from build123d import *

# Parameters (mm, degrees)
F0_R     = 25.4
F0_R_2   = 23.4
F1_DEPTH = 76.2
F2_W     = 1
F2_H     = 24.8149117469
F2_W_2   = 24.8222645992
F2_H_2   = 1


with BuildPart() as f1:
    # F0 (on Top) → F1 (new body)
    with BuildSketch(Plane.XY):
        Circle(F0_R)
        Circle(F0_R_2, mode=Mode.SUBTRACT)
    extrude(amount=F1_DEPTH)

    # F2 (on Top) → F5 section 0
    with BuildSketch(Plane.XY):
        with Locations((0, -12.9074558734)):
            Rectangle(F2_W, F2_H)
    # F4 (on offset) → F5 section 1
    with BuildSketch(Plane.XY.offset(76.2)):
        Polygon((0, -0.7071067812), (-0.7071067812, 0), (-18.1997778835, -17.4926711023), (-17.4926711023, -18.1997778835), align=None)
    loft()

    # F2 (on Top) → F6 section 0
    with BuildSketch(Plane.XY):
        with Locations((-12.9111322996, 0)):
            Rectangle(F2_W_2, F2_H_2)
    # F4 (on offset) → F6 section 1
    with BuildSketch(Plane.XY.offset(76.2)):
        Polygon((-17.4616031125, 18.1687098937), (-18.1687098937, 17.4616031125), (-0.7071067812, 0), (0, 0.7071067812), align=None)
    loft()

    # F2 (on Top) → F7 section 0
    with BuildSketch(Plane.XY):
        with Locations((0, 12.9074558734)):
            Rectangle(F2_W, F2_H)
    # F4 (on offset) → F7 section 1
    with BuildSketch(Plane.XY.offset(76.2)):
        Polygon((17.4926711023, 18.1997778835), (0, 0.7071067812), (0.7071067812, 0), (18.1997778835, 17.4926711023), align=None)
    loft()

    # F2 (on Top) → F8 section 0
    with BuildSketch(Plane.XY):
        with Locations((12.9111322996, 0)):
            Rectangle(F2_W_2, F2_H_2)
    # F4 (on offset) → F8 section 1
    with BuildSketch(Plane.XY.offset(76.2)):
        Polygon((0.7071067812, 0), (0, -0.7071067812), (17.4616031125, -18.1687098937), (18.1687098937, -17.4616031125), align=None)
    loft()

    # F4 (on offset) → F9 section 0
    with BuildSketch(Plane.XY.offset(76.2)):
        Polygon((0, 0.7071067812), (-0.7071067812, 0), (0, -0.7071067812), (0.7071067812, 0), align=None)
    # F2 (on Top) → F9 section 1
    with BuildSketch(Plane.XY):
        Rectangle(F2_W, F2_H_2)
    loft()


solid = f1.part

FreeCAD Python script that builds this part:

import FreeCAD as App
import Part
import Sketcher
from FreeCAD import Vector
Q = App.Units.Quantity

doc = App.newDocument("Part")
body = doc.addObject("PartDesign::Body", "Body")

sketch1 = body.newObject("Sketcher::SketchObject", "Sketch")
sketch1.AttachmentSupport = (doc.getObject("XY_Plane"), [""])
sketch1.MapMode = "FlatFace"
sketch1.addGeometry(Part.Circle(Vector(0, 0, 0), Vector(0, 0, 1), 25.4), False)
sketch1.addGeometry(Part.Circle(Vector(0, 0, 0), Vector(0, 0, 1), 23.4), False)
sketch1.addConstraint(Sketcher.Constraint("Coincident", 0, 3, -1, 1))
sketch1.addConstraint(Sketcher.Constraint("Coincident", 1, 3, -1, 1))
sketch1.addConstraint(Sketcher.Constraint("Diameter", 0, 50.8))
sketch1.addConstraint(Sketcher.Constraint("Diameter", 1, 46.8))
pad1 = body.newObject("PartDesign::Pad", "Pad")
pad1.Profile = sketch1
pad1.Length = 76.2

sketch2 = body.newObject("Sketcher::SketchObject", "Sketch001")
sketch2.AttachmentSupport = (doc.getObject("XY_Plane"), [""])
sketch2.MapMode = "FlatFace"
sketch2.addGeometry(Part.LineSegment(Vector(-0.5, -0.5, 0), Vector(-0.5, -25.314912, 0)), False)
sketch2.addGeometry(Part.LineSegment(Vector(-0.5, -25.314912, 0), Vector(0.5, -25.314912, 0)), False)
sketch2.addGeometry(Part.LineSegment(Vector(0.5, -25.314912, 0), Vector(0.5, -0.5, 0)), False)
sketch2.addGeometry(Part.LineSegment(Vector(0.5, -0.5, 0), Vector(-0.5, -0.5, 0)), False)
sketch2.addConstraint(Sketcher.Constraint("Coincident", 0, 2, 1, 1))
sketch2.addConstraint(Sketcher.Constraint("Coincident", 1, 2, 2, 1))
sketch2.addConstraint(Sketcher.Constraint("Coincident", 2, 2, 3, 1))
sketch2.addConstraint(Sketcher.Constraint("Coincident", 3, 2, 0, 1))
sketch2.addConstraint(Sketcher.Constraint("Vertical", 0))
sketch2.addConstraint(Sketcher.Constraint("Horizontal", 1))
sketch2.addConstraint(Sketcher.Constraint("Vertical", 2))
sketch2.addConstraint(Sketcher.Constraint("Horizontal", 3))
sketch2.addConstraint(Sketcher.Constraint("DistanceX", 1, 1, 1, 2, 1.0))
sketch2.addConstraint(Sketcher.Constraint("DistanceX", 0, 2, -1, 1, 0.5))
sketch2.addConstraint(Sketcher.Constraint("DistanceY", 2, 2, -1, 1, 0.5))
sketch2.addConstraint(Sketcher.Constraint("DistanceY", 0, 2, 0, 1, 24.814912))

sketch3 = body.newObject("Sketcher::SketchObject", "Sketch002")
sketch3.AttachmentSupport = (doc.getObject("XY_Plane"), [""])
sketch3.MapMode = "FlatFace"
sketch3.AttachmentOffset = App.Placement(Vector(0, 0, 76.2), App.Rotation())
sketch3.addGeometry(Part.LineSegment(Vector(0, -0.707107, 0), Vector(-0.707107, 0, 0)), False)
sketch3.addGeometry(Part.LineSegment(Vector(-0.707107, 0, 0), Vector(-18.199778, -17.492671, 0)), False)
sketch3.addGeometry(Part.LineSegment(Vector(-18.199778, -17.492671, 0), Vector(-17.492671, -18.199778, 0)), False)
sketch3.addGeometry(Part.LineSegment(Vector(-17.492671, -18.199778, 0), Vector(0, -0.707107, 0)), False)
sketch3.addConstraint(Sketcher.Constraint("Coincident", 0, 2, 1, 1))
sketch3.addConstraint(Sketcher.Constraint("Coincident", 1, 2, 2, 1))
sketch3.addConstraint(Sketcher.Constraint("Coincident", 2, 2, 3, 1))
sketch3.addConstraint(Sketcher.Constraint("Coincident", 3, 2, 0, 1))
sketch3.addConstraint(Sketcher.Constraint("PointOnObject", 0, 2, -1))
sketch3.addConstraint(Sketcher.Constraint("PointOnObject", 3, 2, -2))
sketch3.addConstraint(Sketcher.Constraint("Perpendicular", 0, 1))
sketch3.addConstraint(Sketcher.Constraint("Perpendicular", 1, 2))
sketch3.addConstraint(Sketcher.Constraint("Perpendicular", 2, 3))
sketch3.addConstraint(Sketcher.Constraint("Angle", 0, Q("135 deg")))
sketch3.addConstraint(Sketcher.Constraint("Distance", 0, 1.0))
sketch3.addConstraint(Sketcher.Constraint("DistanceY", 1, 2, -1, 1, 17.492671))

additiveloft = body.newObject("PartDesign::AdditiveLoft", "AdditiveLoft")
additiveloft.Profile = sketch2
additiveloft.Sections = [sketch3]

sketch4 = body.newObject("Sketcher::SketchObject", "Sketch003")
sketch4.AttachmentSupport = (doc.getObject("XY_Plane"), [""])
sketch4.MapMode = "FlatFace"
sketch4.addGeometry(Part.LineSegment(Vector(-25.322265, 0.5, 0), Vector(-25.322265, -0.5, 0)), False)
sketch4.addGeometry(Part.LineSegment(Vector(-25.322265, -0.5, 0), Vector(-0.5, -0.5, 0)), False)
sketch4.addGeometry(Part.LineSegment(Vector(-0.5, -0.5, 0), Vector(-0.5, 0.5, 0)), False)
sketch4.addGeometry(Part.LineSegment(Vector(-0.5, 0.5, 0), Vector(-25.322265, 0.5, 0)), False)
sketch4.addConstraint(Sketcher.Constraint("Coincident", 0, 2, 1, 1))
sketch4.addConstraint(Sketcher.Constraint("Coincident", 1, 2, 2, 1))
sketch4.addConstraint(Sketcher.Constraint("Coincident", 2, 2, 3, 1))
sketch4.addConstraint(Sketcher.Constraint("Coincident", 3, 2, 0, 1))
sketch4.addConstraint(Sketcher.Constraint("Vertical", 0))
sketch4.addConstraint(Sketcher.Constraint("Horizontal", 1))
sketch4.addConstraint(Sketcher.Constraint("Vertical", 2))
sketch4.addConstraint(Sketcher.Constraint("Horizontal", 3))
sketch4.addConstraint(Sketcher.Constraint("DistanceY", 0, 2, 0, 1, 1.0))
sketch4.addConstraint(Sketcher.Constraint("DistanceY", 0, 2, -1, 1, 0.5))
sketch4.addConstraint(Sketcher.Constraint("DistanceX", 1, 2, -1, 1, 0.5))
sketch4.addConstraint(Sketcher.Constraint("DistanceX", 1, 1, 1, 2, 24.822265))

sketch5 = body.newObject("Sketcher::SketchObject", "Sketch004")
sketch5.AttachmentSupport = (doc.getObject("XY_Plane"), [""])
sketch5.MapMode = "FlatFace"
sketch5.AttachmentOffset = App.Placement(Vector(0, 0, 76.2), App.Rotation())
sketch5.addGeometry(Part.LineSegment(Vector(-17.461603, 18.16871, 0), Vector(-18.16871, 17.461603, 0)), False)
sketch5.addGeometry(Part.LineSegment(Vector(-18.16871, 17.461603, 0), Vector(-0.707107, 0, 0)), False)
sketch5.addGeometry(Part.LineSegment(Vector(-0.707107, 0, 0), Vector(0, 0.707107, 0)), False)
sketch5.addGeometry(Part.LineSegment(Vector(0, 0.707107, 0), Vector(-17.461603, 18.16871, 0)), False)
sketch5.addConstraint(Sketcher.Constraint("Coincident", 0, 2, 1, 1))
sketch5.addConstraint(Sketcher.Constraint("Coincident", 1, 2, 2, 1))
sketch5.addConstraint(Sketcher.Constraint("Coincident", 2, 2, 3, 1))
sketch5.addConstraint(Sketcher.Constraint("Coincident", 3, 2, 0, 1))
sketch5.addConstraint(Sketcher.Constraint("PointOnObject", 1, 2, -1))
sketch5.addConstraint(Sketcher.Constraint("PointOnObject", 2, 2, -2))
sketch5.addConstraint(Sketcher.Constraint("Perpendicular", 0, 1))
sketch5.addConstraint(Sketcher.Constraint("Perpendicular", 1, 2))
sketch5.addConstraint(Sketcher.Constraint("Perpendicular", 2, 3))
sketch5.addConstraint(Sketcher.Constraint("Angle", 0, Q("-135 deg")))
sketch5.addConstraint(Sketcher.Constraint("Distance", 0, 1.0))
sketch5.addConstraint(Sketcher.Constraint("DistanceX", 0, 2, -1, 1, 18.16871))

additiveloft2 = body.newObject("PartDesign::AdditiveLoft", "AdditiveLoft001")
additiveloft2.Profile = sketch4
additiveloft2.Sections = [sketch5]

sketch6 = body.newObject("Sketcher::SketchObject", "Sketch005")
sketch6.AttachmentSupport = (doc.getObject("XY_Plane"), [""])
sketch6.MapMode = "FlatFace"
sketch6.addGeometry(Part.LineSegment(Vector(-0.5, 25.314912, 0), Vector(-0.5, 0.5, 0)), False)
sketch6.addGeometry(Part.LineSegment(Vector(-0.5, 0.5, 0), Vector(0.5, 0.5, 0)), False)
sketch6.addGeometry(Part.LineSegment(Vector(0.5, 0.5, 0), Vector(0.5, 25.314912, 0)), False)
sketch6.addGeometry(Part.LineSegment(Vector(0.5, 25.314912, 0), Vector(-0.5, 25.314912, 0)), False)
sketch6.addConstraint(Sketcher.Constraint("Coincident", 0, 2, 1, 1))
sketch6.addConstraint(Sketcher.Constraint("Coincident", 1, 2, 2, 1))
sketch6.addConstraint(Sketcher.Constraint("Coincident", 2, 2, 3, 1))
sketch6.addConstraint(Sketcher.Constraint("Coincident", 3, 2, 0, 1))
sketch6.addConstraint(Sketcher.Constraint("Vertical", 0))
sketch6.addConstraint(Sketcher.Constraint("Horizontal", 1))
sketch6.addConstraint(Sketcher.Constraint("Vertical", 2))
sketch6.addConstraint(Sketcher.Constraint("Horizontal", 3))
sketch6.addConstraint(Sketcher.Constraint("DistanceX", 1, 1, 1, 2, 1.0))
sketch6.addConstraint(Sketcher.Constraint("DistanceX", 0, 2, -1, 1, 0.5))
sketch6.addConstraint(Sketcher.Constraint("DistanceY", -1, 1, 0, 2, 0.5))
sketch6.addConstraint(Sketcher.Constraint("DistanceY", 0, 2, 0, 1, 24.814912))

sketch7 = body.newObject("Sketcher::SketchObject", "Sketch006")
sketch7.AttachmentSupport = (doc.getObject("XY_Plane"), [""])
sketch7.MapMode = "FlatFace"
sketch7.AttachmentOffset = App.Placement(Vector(0, 0, 76.2), App.Rotation())
sketch7.addGeometry(Part.LineSegment(Vector(17.492671, 18.199778, 0), Vector(0, 0.707107, 0)), False)
sketch7.addGeometry(Part.LineSegment(Vector(0, 0.707107, 0), Vector(0.707107, 0, 0)), False)
sketch7.addGeometry(Part.LineSegment(Vector(0.707107, 0, 0), Vector(18.199778, 17.492671, 0)), False)
sketch7.addGeometry(Part.LineSegment(Vector(18.199778, 17.492671, 0), Vector(17.492671, 18.199778, 0)), False)
sketch7.addConstraint(Sketcher.Constraint("Coincident", 0, 2, 1, 1))
sketch7.addConstraint(Sketcher.Constraint("Coincident", 1, 2, 2, 1))
sketch7.addConstraint(Sketcher.Constraint("Coincident", 2, 2, 3, 1))
sketch7.addConstraint(Sketcher.Constraint("Coincident", 3, 2, 0, 1))
sketch7.addConstraint(Sketcher.Constraint("PointOnObject", 0, 2, -2))
sketch7.addConstraint(Sketcher.Constraint("PointOnObject", 1, 2, -1))
sketch7.addConstraint(Sketcher.Constraint("Perpendicular", 0, 1))
sketch7.addConstraint(Sketcher.Constraint("Perpendicular", 1, 2))
sketch7.addConstraint(Sketcher.Constraint("Perpendicular", 2, 3))
sketch7.addConstraint(Sketcher.Constraint("Angle", 0, Q("-135 deg")))
sketch7.addConstraint(Sketcher.Constraint("Distance", 1, 1.0))
sketch7.addConstraint(Sketcher.Constraint("DistanceY", -1, 1, 2, 2, 17.492671))

additiveloft3 = body.newObject("PartDesign::AdditiveLoft", "AdditiveLoft002")
additiveloft3.Profile = sketch6
additiveloft3.Sections = [sketch7]

sketch8 = body.newObject("Sketcher::SketchObject", "Sketch007")
sketch8.AttachmentSupport = (doc.getObject("XY_Plane"), [""])
sketch8.MapMode = "FlatFace"
sketch8.addGeometry(Part.LineSegment(Vector(0.5, 0.5, 0), Vector(0.5, -0.5, 0)), False)
sketch8.addGeometry(Part.LineSegment(Vector(0.5, -0.5, 0), Vector(25.322265, -0.5, 0)), False)
sketch8.addGeometry(Part.LineSegment(Vector(25.322265, -0.5, 0), Vector(25.322265, 0.5, 0)), False)
sketch8.addGeometry(Part.LineSegment(Vector(25.322265, 0.5, 0), Vector(0.5, 0.5, 0)), False)
sketch8.addConstraint(Sketcher.Constraint("Coincident", 0, 2, 1, 1))
sketch8.addConstraint(Sketcher.Constraint("Coincident", 1, 2, 2, 1))
sketch8.addConstraint(Sketcher.Constraint("Coincident", 2, 2, 3, 1))
sketch8.addConstraint(Sketcher.Constraint("Coincident", 3, 2, 0, 1))
sketch8.addConstraint(Sketcher.Constraint("Vertical", 0))
sketch8.addConstraint(Sketcher.Constraint("Horizontal", 1))
sketch8.addConstraint(Sketcher.Constraint("Vertical", 2))
sketch8.addConstraint(Sketcher.Constraint("Horizontal", 3))
sketch8.addConstraint(Sketcher.Constraint("DistanceY", 0, 2, 0, 1, 1.0))
sketch8.addConstraint(Sketcher.Constraint("DistanceX", -1, 1, 0, 2, 0.5))
sketch8.addConstraint(Sketcher.Constraint("DistanceY", 0, 2, -1, 1, 0.5))
sketch8.addConstraint(Sketcher.Constraint("DistanceX", 1, 1, 1, 2, 24.822265))

sketch9 = body.newObject("Sketcher::SketchObject", "Sketch008")
sketch9.AttachmentSupport = (doc.getObject("XY_Plane"), [""])
sketch9.MapMode = "FlatFace"
sketch9.AttachmentOffset = App.Placement(Vector(0, 0, 76.2), App.Rotation())
sketch9.addGeometry(Part.LineSegment(Vector(0.707107, 0, 0), Vector(0, -0.707107, 0)), False)
sketch9.addGeometry(Part.LineSegment(Vector(0, -0.707107, 0), Vector(17.461603, -18.16871, 0)), False)
sketch9.addGeometry(Part.LineSegment(Vector(17.461603, -18.16871, 0), Vector(18.16871, -17.461603, 0)), False)
sketch9.addGeometry(Part.LineSegment(Vector(18.16871, -17.461603, 0), Vector(0.707107, 0, 0)), False)
sketch9.addConstraint(Sketcher.Constraint("Coincident", 0, 2, 1, 1))
sketch9.addConstraint(Sketcher.Constraint("Coincident", 1, 2, 2, 1))
sketch9.addConstraint(Sketcher.Constraint("Coincident", 2, 2, 3, 1))
sketch9.addConstraint(Sketcher.Constraint("Coincident", 3, 2, 0, 1))
sketch9.addConstraint(Sketcher.Constraint("PointOnObject", 0, 2, -2))
sketch9.addConstraint(Sketcher.Constraint("PointOnObject", 3, 2, -1))
sketch9.addConstraint(Sketcher.Constraint("Perpendicular", 0, 1))
sketch9.addConstraint(Sketcher.Constraint("Perpendicular", 1, 2))
sketch9.addConstraint(Sketcher.Constraint("Perpendicular", 2, 3))
sketch9.addConstraint(Sketcher.Constraint("Angle", 0, Q("-135 deg")))
sketch9.addConstraint(Sketcher.Constraint("Distance", 0, 1.0))
sketch9.addConstraint(Sketcher.Constraint("DistanceY", 1, 2, -1, 1, 18.16871))

additiveloft4 = body.newObject("PartDesign::AdditiveLoft", "AdditiveLoft003")
additiveloft4.Profile = sketch8
additiveloft4.Sections = [sketch9]

sketch10 = body.newObject("Sketcher::SketchObject", "Sketch009")
sketch10.AttachmentSupport = (doc.getObject("XY_Plane"), [""])
sketch10.MapMode = "FlatFace"
sketch10.AttachmentOffset = App.Placement(Vector(0, 0, 76.2), App.Rotation())
sketch10.addGeometry(Part.LineSegment(Vector(0, 0.707107, 0), Vector(-0.707107, 0, 0)), False)
sketch10.addGeometry(Part.LineSegment(Vector(-0.707107, 0, 0), Vector(0, -0.707107, 0)), False)
sketch10.addGeometry(Part.LineSegment(Vector(0, -0.707107, 0), Vector(0.707107, 0, 0)), False)
sketch10.addGeometry(Part.LineSegment(Vector(0.707107, 0, 0), Vector(0, 0.707107, 0)), False)
sketch10.addConstraint(Sketcher.Constraint("Coincident", 0, 2, 1, 1))
sketch10.addConstraint(Sketcher.Constraint("Coincident", 1, 2, 2, 1))
sketch10.addConstraint(Sketcher.Constraint("Coincident", 2, 2, 3, 1))
sketch10.addConstraint(Sketcher.Constraint("Coincident", 3, 2, 0, 1))
sketch10.addConstraint(Sketcher.Constraint("Symmetric", 0, 2, 2, 2, -1, 1))
sketch10.addConstraint(Sketcher.Constraint("Symmetric", 1, 2, 3, 2, -1, 1))
sketch10.addConstraint(Sketcher.Constraint("PointOnObject", 0, 2, -1))
sketch10.addConstraint(Sketcher.Constraint("PointOnObject", 1, 2, -2))
sketch10.addConstraint(Sketcher.Constraint("Perpendicular", 0, 1))
sketch10.addConstraint(Sketcher.Constraint("Distance", 0, 1.0))

sketch11 = body.newObject("Sketcher::SketchObject", "Sketch010")
sketch11.AttachmentSupport = (doc.getObject("XY_Plane"), [""])
sketch11.MapMode = "FlatFace"
sketch11.addGeometry(Part.LineSegment(Vector(-0.5, 0.5, 0), Vector(-0.5, -0.5, 0)), False)
sketch11.addGeometry(Part.LineSegment(Vector(-0.5, -0.5, 0), Vector(0.5, -0.5, 0)), False)
sketch11.addGeometry(Part.LineSegment(Vector(0.5, -0.5, 0), Vector(0.5, 0.5, 0)), False)
sketch11.addGeometry(Part.LineSegment(Vector(0.5, 0.5, 0), Vector(-0.5, 0.5, 0)), False)
sketch11.addConstraint(Sketcher.Constraint("Coincident", 0, 2, 1, 1))
sketch11.addConstraint(Sketcher.Constraint("Coincident", 1, 2, 2, 1))
sketch11.addConstraint(Sketcher.Constraint("Coincident", 2, 2, 3, 1))
sketch11.addConstraint(Sketcher.Constraint("Coincident", 3, 2, 0, 1))
sketch11.addConstraint(Sketcher.Constraint("Vertical", 0))
sketch11.addConstraint(Sketcher.Constraint("Horizontal", 1))
sketch11.addConstraint(Sketcher.Constraint("Vertical", 2))
sketch11.addConstraint(Sketcher.Constraint("Horizontal", 3))
sketch11.addConstraint(Sketcher.Constraint("Symmetric", 0, 2, 2, 2, -1, 1))
sketch11.addConstraint(Sketcher.Constraint("Equal", 3, 0))
sketch11.addConstraint(Sketcher.Constraint("DistanceX", 1, 1, 1, 2, 1.0))

additiveloft5 = body.newObject("PartDesign::AdditiveLoft", "AdditiveLoft004")
additiveloft5.Profile = sketch10
additiveloft5.Sections = [sketch11]

doc.recompute()
